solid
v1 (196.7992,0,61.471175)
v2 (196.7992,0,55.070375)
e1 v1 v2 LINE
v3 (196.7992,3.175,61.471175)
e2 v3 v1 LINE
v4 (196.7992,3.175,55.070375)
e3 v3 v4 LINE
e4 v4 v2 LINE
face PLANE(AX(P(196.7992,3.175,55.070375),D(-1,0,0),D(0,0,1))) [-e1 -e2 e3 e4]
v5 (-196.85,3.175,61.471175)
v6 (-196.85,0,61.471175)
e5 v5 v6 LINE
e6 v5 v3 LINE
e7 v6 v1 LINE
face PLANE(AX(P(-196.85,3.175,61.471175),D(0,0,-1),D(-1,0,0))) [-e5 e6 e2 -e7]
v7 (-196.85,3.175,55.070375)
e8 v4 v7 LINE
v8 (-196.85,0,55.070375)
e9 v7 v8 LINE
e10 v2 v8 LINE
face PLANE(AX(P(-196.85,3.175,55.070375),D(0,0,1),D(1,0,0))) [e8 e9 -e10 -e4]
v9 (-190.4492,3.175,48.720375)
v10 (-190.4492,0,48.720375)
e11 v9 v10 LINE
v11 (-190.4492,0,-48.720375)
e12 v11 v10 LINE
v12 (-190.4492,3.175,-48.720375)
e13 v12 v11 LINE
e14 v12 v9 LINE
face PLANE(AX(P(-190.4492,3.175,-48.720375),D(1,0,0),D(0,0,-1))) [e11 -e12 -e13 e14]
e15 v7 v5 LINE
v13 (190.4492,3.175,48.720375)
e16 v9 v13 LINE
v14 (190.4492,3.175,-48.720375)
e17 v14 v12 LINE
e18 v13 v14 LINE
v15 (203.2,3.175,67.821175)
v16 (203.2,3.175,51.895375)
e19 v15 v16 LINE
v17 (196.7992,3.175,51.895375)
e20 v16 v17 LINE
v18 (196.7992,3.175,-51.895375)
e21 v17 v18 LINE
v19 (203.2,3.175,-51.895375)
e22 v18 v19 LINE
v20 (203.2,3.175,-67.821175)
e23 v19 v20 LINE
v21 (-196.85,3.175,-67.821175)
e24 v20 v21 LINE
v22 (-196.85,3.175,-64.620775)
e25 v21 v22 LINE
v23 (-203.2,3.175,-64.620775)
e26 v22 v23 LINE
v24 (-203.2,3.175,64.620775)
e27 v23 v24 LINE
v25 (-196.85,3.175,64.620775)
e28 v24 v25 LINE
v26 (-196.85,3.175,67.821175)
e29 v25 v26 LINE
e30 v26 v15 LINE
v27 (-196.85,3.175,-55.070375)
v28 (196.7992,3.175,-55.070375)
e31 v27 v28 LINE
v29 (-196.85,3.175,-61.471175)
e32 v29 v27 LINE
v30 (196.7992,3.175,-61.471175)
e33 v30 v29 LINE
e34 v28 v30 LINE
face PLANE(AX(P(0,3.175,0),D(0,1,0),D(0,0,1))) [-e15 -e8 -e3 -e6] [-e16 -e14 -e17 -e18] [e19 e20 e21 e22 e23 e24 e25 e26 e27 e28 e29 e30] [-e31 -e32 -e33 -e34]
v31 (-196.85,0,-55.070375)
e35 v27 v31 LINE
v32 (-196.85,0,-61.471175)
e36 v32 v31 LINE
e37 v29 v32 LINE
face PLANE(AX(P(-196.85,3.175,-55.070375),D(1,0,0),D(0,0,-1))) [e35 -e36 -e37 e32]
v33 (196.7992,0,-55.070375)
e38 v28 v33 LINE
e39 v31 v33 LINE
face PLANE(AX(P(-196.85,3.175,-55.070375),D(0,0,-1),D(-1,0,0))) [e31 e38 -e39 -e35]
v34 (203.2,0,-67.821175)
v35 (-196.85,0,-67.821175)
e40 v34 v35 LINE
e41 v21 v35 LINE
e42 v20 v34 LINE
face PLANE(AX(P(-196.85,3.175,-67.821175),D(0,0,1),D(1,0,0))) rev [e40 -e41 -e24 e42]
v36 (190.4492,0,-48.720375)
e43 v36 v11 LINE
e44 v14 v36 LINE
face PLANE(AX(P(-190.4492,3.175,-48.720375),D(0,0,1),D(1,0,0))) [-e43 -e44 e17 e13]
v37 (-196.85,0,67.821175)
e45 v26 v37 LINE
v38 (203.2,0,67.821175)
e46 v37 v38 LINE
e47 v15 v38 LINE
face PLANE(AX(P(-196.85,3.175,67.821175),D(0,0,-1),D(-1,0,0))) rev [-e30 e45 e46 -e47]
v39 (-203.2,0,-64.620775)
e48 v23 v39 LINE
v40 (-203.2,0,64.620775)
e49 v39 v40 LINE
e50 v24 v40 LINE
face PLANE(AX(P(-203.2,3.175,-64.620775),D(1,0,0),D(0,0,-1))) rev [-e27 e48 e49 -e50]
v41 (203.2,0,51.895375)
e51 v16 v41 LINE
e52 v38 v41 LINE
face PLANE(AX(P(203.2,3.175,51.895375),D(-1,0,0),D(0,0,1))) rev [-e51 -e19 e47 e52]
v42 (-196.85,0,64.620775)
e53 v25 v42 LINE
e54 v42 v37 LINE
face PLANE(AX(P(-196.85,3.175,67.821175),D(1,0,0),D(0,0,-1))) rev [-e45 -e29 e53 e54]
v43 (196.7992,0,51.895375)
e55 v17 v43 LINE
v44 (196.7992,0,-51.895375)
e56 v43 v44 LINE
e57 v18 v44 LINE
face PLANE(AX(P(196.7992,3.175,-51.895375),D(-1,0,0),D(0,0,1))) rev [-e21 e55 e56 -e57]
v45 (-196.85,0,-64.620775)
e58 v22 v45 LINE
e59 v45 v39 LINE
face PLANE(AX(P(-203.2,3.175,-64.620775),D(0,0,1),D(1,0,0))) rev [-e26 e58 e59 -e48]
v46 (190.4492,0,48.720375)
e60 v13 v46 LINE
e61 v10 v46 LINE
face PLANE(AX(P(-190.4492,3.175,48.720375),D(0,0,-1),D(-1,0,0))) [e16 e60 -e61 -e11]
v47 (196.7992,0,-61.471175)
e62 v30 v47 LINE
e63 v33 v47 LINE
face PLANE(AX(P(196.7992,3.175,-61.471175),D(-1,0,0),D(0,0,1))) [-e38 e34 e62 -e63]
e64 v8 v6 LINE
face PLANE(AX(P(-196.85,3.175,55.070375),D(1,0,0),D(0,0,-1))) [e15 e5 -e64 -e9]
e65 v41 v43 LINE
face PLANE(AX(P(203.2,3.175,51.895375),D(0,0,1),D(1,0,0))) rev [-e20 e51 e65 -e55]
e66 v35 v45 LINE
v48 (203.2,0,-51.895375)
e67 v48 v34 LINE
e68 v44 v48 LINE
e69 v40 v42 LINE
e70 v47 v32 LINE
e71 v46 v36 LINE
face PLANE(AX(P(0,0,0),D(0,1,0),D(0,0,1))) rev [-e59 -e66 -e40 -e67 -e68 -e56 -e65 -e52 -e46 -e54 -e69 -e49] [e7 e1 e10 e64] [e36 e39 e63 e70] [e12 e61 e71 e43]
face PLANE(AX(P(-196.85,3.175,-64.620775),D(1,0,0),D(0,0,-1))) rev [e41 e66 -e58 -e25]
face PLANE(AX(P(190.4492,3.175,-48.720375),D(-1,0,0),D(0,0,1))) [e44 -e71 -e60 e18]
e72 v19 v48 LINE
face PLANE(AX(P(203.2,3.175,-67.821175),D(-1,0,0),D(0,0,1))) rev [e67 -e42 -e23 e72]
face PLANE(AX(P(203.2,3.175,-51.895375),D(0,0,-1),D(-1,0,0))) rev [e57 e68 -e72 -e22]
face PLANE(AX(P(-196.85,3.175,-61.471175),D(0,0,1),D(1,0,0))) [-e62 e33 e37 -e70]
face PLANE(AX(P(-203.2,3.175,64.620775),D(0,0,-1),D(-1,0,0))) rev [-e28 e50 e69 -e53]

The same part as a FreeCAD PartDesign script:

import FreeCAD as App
import Part
import Sketcher
from FreeCAD import Vector
Q = App.Units.Quantity

doc = App.newDocument("Part")
params = doc.addObject("Spreadsheet::Sheet", "Params")
for row, (alias, value) in enumerate([
    ("sketch1_width", "0.25 in"),
    ("sketch1_width2", "0.252 in"),
    ("sketch1_width3", "14.996 in"),
    ("sketch1_height", "0.126 in"),
    ("sketch1_height2", "0.627 in"),
    ("pad1_length", "0.125 in"),
], start=1):
    params.set(f"A{row}", alias)
    params.set(f"B{row}", "=" + value)
    params.setAlias(f"B{row}", alias)

body = doc.addObject("PartDesign::Body", "Body")

sketch1 = body.newObject("Sketcher::SketchObject", "Sketch")
sketch1.AttachmentSupport = (doc.getObject("XZ_Plane"), [""])
sketch1.MapMode = "FlatFace"
sketch1.addGeometry([
    Part.LineSegment(Vector(-203.2, -64.6, 0), Vector(-203.2, 64.6, 0)),
    Part.LineSegment(Vector(-203.2, 64.6, 0), Vector(-196.8, 64.6, 0)),
    Part.LineSegment(Vector(-196.8, 64.6, 0), Vector(-196.8, 67.8, 0)),
    Part.LineSegment(Vector(-196.8, 67.8, 0), Vector(203.2, 67.8, 0)),
    Part.LineSegment(Vector(203.2, 67.8, 0), Vector(203.2, 51.9, 0)),
    Part.LineSegment(Vector(203.2, 51.9, 0), Vector(196.8, 51.9, 0)),
    Part.LineSegment(Vector(196.8, 51.9, 0), Vector(196.8, -51.9, 0)),
    Part.LineSegment(Vector(196.8, -51.9, 0), Vector(203.2, -51.9, 0)),
    Part.LineSegment(Vector(203.2, -51.9, 0), Vector(203.2, -67.8, 0)),
    Part.LineSegment(Vector(203.2, -67.8, 0), Vector(-196.8, -67.8, 0)),
    Part.LineSegment(Vector(-196.8, -67.8, 0), Vector(-196.8, -64.6, 0)),
    Part.LineSegment(Vector(-196.8, -64.6, 0), Vector(-203.2, -64.6, 0)),
    Part.LineSegment(Vector(196.8, 61.5, 0), Vector(-196.8, 61.5, 0)),
    Part.LineSegment(Vector(-196.8, 61.5, 0), Vector(-196.8, 55.1, 0)),
    Part.LineSegment(Vector(-196.8, 55.1, 0), Vector(196.8, 55.1, 0)),
    Part.LineSegment(Vector(196.8, 55.1, 0), Vector(196.8, 61.5, 0)),
    Part.LineSegment(Vector(190.4, 48.7, 0), Vector(-190.4, 48.7, 0)),
    Part.LineSegment(Vector(-190.4, 48.7, 0), Vector(-190.4, -48.7, 0)),
    Part.LineSegment(Vector(-190.4, -48.7, 0), Vector(190.4, -48.7, 0)),
    Part.LineSegment(Vector(190.4, -48.7, 0), Vector(190.4, 48.7, 0)),
    Part.LineSegment(Vector(196.8, -55.1, 0), Vector(-196.8, -55.1, 0)),
    Part.LineSegment(Vector(-196.8, -55.1, 0), Vector(-196.8, -61.5, 0)),
    Part.LineSegment(Vector(-196.8, -61.5, 0), Vector(196.8, -61.5, 0)),
    Part.LineSegment(Vector(196.8, -61.5, 0), Vector(196.8, -55.1, 0)),
], False)
sketch1.addConstraint([
    Sketcher.Constraint("Coincident", 0, 2, 1, 1),
    Sketcher.Constraint("Coincident", 1, 2, 2, 1),
    Sketcher.Constraint("Coincident", 2, 2, 3, 1),
    Sketcher.Constraint("Coincident", 3, 2, 4, 1),
    Sketcher.Constraint("Coincident", 4, 2, 5, 1),
    Sketcher.Constraint("Coincident", 5, 2, 6, 1),
    Sketcher.Constraint("Coincident", 6, 2, 7, 1),
    Sketcher.Constraint("Coincident", 7, 2, 8, 1),
    Sketcher.Constraint("Coincident", 8, 2, 9, 1),
    Sketcher.Constraint("Coincident", 9, 2, 10, 1),
    Sketcher.Constraint("Coincident", 10, 2, 11, 1),
    Sketcher.Constraint("Coincident", 11, 2, 0, 1),
    Sketcher.Constraint("Coincident", 12, 2, 13, 1),
    Sketcher.Constraint("Coincident", 13, 2, 14, 1),
    Sketcher.Constraint("Coincident", 14, 2, 15, 1),
    Sketcher.Constraint("Coincident", 15, 2, 12, 1),
    Sketcher.Constraint("Coincident", 16, 2, 17, 1),
    Sketcher.Constraint("Coincident", 17, 2, 18, 1),
    Sketcher.Constraint("Coincident", 18, 2, 19, 1),
    Sketcher.Constraint("Coincident", 19, 2, 16, 1),
    Sketcher.Constraint("Coincident", 20, 2, 21, 1),
    Sketcher.Constraint("Coincident", 21, 2, 22, 1),
    Sketcher.Constraint("Coincident", 22, 2, 23, 1),
    Sketcher.Constraint("Coincident", 23, 2, 20, 1),
    Sketcher.Constraint("Vertical", 0),
    Sketcher.Constraint("Horizontal", 1),
    Sketcher.Constraint("Vertical", 2),
    Sketcher.Constraint("Horizontal", 3),
    Sketcher.Constraint("Vertical", 4),
    Sketcher.Constraint("Horizontal", 5),
    Sketcher.Constraint("Vertical", 6),
    Sketcher.Constraint("Horizontal", 7),
    Sketcher.Constraint("Vertical", 8),
    Sketcher.Constraint("Horizontal", 9),
    Sketcher.Constraint("Vertical", 10),
    Sketcher.Constraint("Horizontal", 11),
    Sketcher.Constraint("Horizontal", 12),
    Sketcher.Constraint("Vertical", 13),
    Sketcher.Constraint("Horizontal", 14),
    Sketcher.Constraint("Vertical", 15),
    Sketcher.Constraint("Horizontal", 16),
    Sketcher.Constraint("Vertical", 17),
    Sketcher.Constraint("Horizontal", 18),
    Sketcher.Constraint("Vertical", 19),
    Sketcher.Constraint("Horizontal", 20),
    Sketcher.Constraint("Vertical", 21),
    Sketcher.Constraint("Horizontal", 22),
    Sketcher.Constraint("Vertical", 23),
    Sketcher.Constraint("Symmetric", 16, 2, 18, 2, -1, 1),
    Sketcher.Constraint("Symmetric", 4, 2, 7, 2, -1),
    Sketcher.Constraint("Symmetric", 2, 2, 9, 2, -1),
    Sketcher.Constraint("Symmetric", 13, 2, 20, 2, -1),
    Sketcher.Constraint("Symmetric", 15, 2, 22, 2, -1),
    Sketcher.Constraint("Vertical", 10, 2, 12, 2),
    Sketcher.Constraint("Vertical", 6, 2, 14, 2),
    Sketcher.Constraint("Equal", 2, 10),
    Sketcher.Constraint("Equal", 7, 13),
    Sketcher.Constraint("DistanceX", 0, 2, -1, 1, Q("8 in")),
    Sketcher.Constraint("DistanceX", -1, 1, 3, 2, Q("8 in")),
    Sketcher.Constraint("DistanceX", 1, 1, 1, 2, Q("0.25 in")),
    Sketcher.Constraint("DistanceX", 5, 2, 5, 1, Q("0.252 in")),
    Sketcher.Constraint("DistanceX", 16, 2, 16, 1, Q("14.996 in")),
    Sketcher.Constraint("DistanceY", 2, 1, 2, 2, Q("0.126 in")),
    Sketcher.Constraint("DistanceY", 4, 2, 4, 1, Q("0.627 in")),
    Sketcher.Constraint("DistanceY", 12, 2, 2, 2, Q("0.25 in")),
    Sketcher.Constraint("DistanceY", 16, 2, 13, 2, Q("0.25 in")),
    Sketcher.Constraint("DistanceY", 0, 1, 0, 2, Q("129.24155 mm")),
])
sketch1.setExpression("Constraints[59]", "Params.sketch1_width")
sketch1.setExpression("Constraints[60]", "Params.sketch1_width2")
sketch1.setExpression("Constraints[61]", "Params.sketch1_width3")
sketch1.setExpression("Constraints[62]", "Params.sketch1_height")
sketch1.setExpression("Constraints[63]", "Params.sketch1_height2")
pad1 = body.newObject("PartDesign::Pad", "Pad")
pad1.Profile = sketch1
pad1.setExpression("Length", "Params.pad1_length")
pad1.Reversed = True

doc.recompute()
